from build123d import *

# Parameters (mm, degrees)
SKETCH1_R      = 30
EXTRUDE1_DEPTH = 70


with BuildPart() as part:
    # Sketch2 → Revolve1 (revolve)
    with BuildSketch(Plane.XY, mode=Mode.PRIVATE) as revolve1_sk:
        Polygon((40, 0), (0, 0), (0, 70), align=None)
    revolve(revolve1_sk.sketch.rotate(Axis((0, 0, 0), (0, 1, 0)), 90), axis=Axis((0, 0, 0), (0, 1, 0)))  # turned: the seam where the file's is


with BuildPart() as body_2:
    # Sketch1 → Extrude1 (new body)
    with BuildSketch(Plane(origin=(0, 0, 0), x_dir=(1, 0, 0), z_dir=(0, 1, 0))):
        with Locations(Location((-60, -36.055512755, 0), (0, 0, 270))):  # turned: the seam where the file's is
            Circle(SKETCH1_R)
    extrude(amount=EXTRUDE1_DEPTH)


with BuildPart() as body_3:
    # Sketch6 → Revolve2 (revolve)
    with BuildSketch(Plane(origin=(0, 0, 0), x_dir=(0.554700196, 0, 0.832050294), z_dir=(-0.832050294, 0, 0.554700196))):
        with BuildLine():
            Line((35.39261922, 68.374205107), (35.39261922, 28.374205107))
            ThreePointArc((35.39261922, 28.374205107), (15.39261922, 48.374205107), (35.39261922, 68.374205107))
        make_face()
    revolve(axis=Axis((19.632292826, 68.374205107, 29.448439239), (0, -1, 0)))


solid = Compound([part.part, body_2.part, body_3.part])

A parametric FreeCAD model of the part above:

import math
import FreeCAD as App
import Part
import Sketcher

V = App.Vector
Q = App.Units.Quantity

doc = App.newDocument("Part")
body = doc.addObject("PartDesign::Body", "Body")

sketch1 = doc.addObject("Sketcher::SketchObject", "Sketch")
body.addObject(sketch1)
sketch1.AttachmentSupport = (doc.XY_Plane, [""])
sketch1.MapMode = "FlatFace"
sketch1.addGeometry([
    Part.LineSegment(V(0, 0, 0), V(40, 0, 0)),
    Part.LineSegment(V(40, 0, 0), V(0, 70, 0)),
    Part.LineSegment(V(0, 70, 0), V(0, 0, 0)),
], False)
sketch1.addConstraint([
    Sketcher.Constraint("Coincident", 0, 2, 1, 1),
    Sketcher.Constraint("Coincident", 1, 2, 2, 1),
    Sketcher.Constraint("Coincident", 2, 2, 0, 1),
    Sketcher.Constraint("Horizontal", 0),
    Sketcher.Constraint("Vertical", 2),
    Sketcher.Constraint("Coincident", 2, 2, -1, 1),
    Sketcher.Constraint("DistanceX", 0, 1, 0, 2, Q("40 mm")),
    Sketcher.Constraint("DistanceY", 2, 2, 2, 1, Q("70 mm")),
])
revolution = doc.addObject("PartDesign::Revolution", "Revolution")
body.addObject(revolution)
revolution.Profile = sketch1
revolution.ReferenceAxis = (sketch1, ["V_Axis"])
revolution.Angle = 360
body2 = doc.addObject("PartDesign::Body", "Body001")

sketch2 = doc.addObject("Sketcher::SketchObject", "Sketch001")
body2.addObject(sketch2)
sketch2.AttachmentSupport = (doc.getObject("XZ_Plane001"), [""])
sketch2.MapMode = "FlatFace"
sketch2.addGeometry(Part.Circle(V(-60, 36, 0), V(0, 0, 1), 30), False)
sketch2.addConstraint([
    Sketcher.Constraint("Diameter", 0, Q("60 mm")),
    Sketcher.Constraint("DistanceX", 0, 3, -1, 1, Q("60 mm")),
    Sketcher.Constraint("DistanceY", -1, 1, 0, 3, Q("36.055513 mm")),
])
pad1 = doc.addObject("PartDesign::Pad", "Pad")
body2.addObject(pad1)
pad1.Profile = sketch2
pad1.Length = 70
pad1.Reversed = True
body3 = doc.addObject("PartDesign::Body", "Body002")

sketch3 = doc.addObject("Sketcher::SketchObject", "Sketch002")
body3.addObject(sketch3)
sketch3.Placement = App.Placement(V(0, 0, 0), App.Rotation(V(0.554700196, 0, 0.832050294), V(0, 0.999999999, 0), V(-0.832050294, 0, 0.554700196), "ZXY"))
sketch3.addGeometry([
    Part.LineSegment(V(35, 28, 0), V(35, 68, 0)),
    Part.ArcOfCircle(Part.Circle(V(35, 48, 0), V(0, 0, 1), 20), math.radians(90), math.radians(270)),
], False)
sketch3.addGeometry(Part.LineSegment(V(35, 68, 0), V(35, 28, 0)), True)
sketch3.addConstraint([
    Sketcher.Constraint("Coincident", 0, 1, 1, 2),
    Sketcher.Constraint("Coincident", 1, 1, 0, 2),
    Sketcher.Constraint("Vertical", 0),
    Sketcher.Constraint("Vertical", 2),
    Sketcher.Constraint("Coincident", 2, 1, 1, 1),
    Sketcher.Constraint("Vertical", 1, 3, 0, 1),
    Sketcher.Constraint("Equal", 0, 2),
    Sketcher.Constraint("Radius", 1, Q("20 mm")),
    Sketcher.Constraint("DistanceX", -1, 1, 1, 3, Q("35.392619 mm")),
    Sketcher.Constraint("DistanceY", -1, 1, 1, 3, Q("48.374205 mm")),
])
revolution2 = doc.addObject("PartDesign::Revolution", "Revolution001")
body3.addObject(revolution2)
revolution2.Profile = sketch3
revolution2.ReferenceAxis = (sketch3, ["Axis0"])
revolution2.Angle = 360

doc.recompute()
